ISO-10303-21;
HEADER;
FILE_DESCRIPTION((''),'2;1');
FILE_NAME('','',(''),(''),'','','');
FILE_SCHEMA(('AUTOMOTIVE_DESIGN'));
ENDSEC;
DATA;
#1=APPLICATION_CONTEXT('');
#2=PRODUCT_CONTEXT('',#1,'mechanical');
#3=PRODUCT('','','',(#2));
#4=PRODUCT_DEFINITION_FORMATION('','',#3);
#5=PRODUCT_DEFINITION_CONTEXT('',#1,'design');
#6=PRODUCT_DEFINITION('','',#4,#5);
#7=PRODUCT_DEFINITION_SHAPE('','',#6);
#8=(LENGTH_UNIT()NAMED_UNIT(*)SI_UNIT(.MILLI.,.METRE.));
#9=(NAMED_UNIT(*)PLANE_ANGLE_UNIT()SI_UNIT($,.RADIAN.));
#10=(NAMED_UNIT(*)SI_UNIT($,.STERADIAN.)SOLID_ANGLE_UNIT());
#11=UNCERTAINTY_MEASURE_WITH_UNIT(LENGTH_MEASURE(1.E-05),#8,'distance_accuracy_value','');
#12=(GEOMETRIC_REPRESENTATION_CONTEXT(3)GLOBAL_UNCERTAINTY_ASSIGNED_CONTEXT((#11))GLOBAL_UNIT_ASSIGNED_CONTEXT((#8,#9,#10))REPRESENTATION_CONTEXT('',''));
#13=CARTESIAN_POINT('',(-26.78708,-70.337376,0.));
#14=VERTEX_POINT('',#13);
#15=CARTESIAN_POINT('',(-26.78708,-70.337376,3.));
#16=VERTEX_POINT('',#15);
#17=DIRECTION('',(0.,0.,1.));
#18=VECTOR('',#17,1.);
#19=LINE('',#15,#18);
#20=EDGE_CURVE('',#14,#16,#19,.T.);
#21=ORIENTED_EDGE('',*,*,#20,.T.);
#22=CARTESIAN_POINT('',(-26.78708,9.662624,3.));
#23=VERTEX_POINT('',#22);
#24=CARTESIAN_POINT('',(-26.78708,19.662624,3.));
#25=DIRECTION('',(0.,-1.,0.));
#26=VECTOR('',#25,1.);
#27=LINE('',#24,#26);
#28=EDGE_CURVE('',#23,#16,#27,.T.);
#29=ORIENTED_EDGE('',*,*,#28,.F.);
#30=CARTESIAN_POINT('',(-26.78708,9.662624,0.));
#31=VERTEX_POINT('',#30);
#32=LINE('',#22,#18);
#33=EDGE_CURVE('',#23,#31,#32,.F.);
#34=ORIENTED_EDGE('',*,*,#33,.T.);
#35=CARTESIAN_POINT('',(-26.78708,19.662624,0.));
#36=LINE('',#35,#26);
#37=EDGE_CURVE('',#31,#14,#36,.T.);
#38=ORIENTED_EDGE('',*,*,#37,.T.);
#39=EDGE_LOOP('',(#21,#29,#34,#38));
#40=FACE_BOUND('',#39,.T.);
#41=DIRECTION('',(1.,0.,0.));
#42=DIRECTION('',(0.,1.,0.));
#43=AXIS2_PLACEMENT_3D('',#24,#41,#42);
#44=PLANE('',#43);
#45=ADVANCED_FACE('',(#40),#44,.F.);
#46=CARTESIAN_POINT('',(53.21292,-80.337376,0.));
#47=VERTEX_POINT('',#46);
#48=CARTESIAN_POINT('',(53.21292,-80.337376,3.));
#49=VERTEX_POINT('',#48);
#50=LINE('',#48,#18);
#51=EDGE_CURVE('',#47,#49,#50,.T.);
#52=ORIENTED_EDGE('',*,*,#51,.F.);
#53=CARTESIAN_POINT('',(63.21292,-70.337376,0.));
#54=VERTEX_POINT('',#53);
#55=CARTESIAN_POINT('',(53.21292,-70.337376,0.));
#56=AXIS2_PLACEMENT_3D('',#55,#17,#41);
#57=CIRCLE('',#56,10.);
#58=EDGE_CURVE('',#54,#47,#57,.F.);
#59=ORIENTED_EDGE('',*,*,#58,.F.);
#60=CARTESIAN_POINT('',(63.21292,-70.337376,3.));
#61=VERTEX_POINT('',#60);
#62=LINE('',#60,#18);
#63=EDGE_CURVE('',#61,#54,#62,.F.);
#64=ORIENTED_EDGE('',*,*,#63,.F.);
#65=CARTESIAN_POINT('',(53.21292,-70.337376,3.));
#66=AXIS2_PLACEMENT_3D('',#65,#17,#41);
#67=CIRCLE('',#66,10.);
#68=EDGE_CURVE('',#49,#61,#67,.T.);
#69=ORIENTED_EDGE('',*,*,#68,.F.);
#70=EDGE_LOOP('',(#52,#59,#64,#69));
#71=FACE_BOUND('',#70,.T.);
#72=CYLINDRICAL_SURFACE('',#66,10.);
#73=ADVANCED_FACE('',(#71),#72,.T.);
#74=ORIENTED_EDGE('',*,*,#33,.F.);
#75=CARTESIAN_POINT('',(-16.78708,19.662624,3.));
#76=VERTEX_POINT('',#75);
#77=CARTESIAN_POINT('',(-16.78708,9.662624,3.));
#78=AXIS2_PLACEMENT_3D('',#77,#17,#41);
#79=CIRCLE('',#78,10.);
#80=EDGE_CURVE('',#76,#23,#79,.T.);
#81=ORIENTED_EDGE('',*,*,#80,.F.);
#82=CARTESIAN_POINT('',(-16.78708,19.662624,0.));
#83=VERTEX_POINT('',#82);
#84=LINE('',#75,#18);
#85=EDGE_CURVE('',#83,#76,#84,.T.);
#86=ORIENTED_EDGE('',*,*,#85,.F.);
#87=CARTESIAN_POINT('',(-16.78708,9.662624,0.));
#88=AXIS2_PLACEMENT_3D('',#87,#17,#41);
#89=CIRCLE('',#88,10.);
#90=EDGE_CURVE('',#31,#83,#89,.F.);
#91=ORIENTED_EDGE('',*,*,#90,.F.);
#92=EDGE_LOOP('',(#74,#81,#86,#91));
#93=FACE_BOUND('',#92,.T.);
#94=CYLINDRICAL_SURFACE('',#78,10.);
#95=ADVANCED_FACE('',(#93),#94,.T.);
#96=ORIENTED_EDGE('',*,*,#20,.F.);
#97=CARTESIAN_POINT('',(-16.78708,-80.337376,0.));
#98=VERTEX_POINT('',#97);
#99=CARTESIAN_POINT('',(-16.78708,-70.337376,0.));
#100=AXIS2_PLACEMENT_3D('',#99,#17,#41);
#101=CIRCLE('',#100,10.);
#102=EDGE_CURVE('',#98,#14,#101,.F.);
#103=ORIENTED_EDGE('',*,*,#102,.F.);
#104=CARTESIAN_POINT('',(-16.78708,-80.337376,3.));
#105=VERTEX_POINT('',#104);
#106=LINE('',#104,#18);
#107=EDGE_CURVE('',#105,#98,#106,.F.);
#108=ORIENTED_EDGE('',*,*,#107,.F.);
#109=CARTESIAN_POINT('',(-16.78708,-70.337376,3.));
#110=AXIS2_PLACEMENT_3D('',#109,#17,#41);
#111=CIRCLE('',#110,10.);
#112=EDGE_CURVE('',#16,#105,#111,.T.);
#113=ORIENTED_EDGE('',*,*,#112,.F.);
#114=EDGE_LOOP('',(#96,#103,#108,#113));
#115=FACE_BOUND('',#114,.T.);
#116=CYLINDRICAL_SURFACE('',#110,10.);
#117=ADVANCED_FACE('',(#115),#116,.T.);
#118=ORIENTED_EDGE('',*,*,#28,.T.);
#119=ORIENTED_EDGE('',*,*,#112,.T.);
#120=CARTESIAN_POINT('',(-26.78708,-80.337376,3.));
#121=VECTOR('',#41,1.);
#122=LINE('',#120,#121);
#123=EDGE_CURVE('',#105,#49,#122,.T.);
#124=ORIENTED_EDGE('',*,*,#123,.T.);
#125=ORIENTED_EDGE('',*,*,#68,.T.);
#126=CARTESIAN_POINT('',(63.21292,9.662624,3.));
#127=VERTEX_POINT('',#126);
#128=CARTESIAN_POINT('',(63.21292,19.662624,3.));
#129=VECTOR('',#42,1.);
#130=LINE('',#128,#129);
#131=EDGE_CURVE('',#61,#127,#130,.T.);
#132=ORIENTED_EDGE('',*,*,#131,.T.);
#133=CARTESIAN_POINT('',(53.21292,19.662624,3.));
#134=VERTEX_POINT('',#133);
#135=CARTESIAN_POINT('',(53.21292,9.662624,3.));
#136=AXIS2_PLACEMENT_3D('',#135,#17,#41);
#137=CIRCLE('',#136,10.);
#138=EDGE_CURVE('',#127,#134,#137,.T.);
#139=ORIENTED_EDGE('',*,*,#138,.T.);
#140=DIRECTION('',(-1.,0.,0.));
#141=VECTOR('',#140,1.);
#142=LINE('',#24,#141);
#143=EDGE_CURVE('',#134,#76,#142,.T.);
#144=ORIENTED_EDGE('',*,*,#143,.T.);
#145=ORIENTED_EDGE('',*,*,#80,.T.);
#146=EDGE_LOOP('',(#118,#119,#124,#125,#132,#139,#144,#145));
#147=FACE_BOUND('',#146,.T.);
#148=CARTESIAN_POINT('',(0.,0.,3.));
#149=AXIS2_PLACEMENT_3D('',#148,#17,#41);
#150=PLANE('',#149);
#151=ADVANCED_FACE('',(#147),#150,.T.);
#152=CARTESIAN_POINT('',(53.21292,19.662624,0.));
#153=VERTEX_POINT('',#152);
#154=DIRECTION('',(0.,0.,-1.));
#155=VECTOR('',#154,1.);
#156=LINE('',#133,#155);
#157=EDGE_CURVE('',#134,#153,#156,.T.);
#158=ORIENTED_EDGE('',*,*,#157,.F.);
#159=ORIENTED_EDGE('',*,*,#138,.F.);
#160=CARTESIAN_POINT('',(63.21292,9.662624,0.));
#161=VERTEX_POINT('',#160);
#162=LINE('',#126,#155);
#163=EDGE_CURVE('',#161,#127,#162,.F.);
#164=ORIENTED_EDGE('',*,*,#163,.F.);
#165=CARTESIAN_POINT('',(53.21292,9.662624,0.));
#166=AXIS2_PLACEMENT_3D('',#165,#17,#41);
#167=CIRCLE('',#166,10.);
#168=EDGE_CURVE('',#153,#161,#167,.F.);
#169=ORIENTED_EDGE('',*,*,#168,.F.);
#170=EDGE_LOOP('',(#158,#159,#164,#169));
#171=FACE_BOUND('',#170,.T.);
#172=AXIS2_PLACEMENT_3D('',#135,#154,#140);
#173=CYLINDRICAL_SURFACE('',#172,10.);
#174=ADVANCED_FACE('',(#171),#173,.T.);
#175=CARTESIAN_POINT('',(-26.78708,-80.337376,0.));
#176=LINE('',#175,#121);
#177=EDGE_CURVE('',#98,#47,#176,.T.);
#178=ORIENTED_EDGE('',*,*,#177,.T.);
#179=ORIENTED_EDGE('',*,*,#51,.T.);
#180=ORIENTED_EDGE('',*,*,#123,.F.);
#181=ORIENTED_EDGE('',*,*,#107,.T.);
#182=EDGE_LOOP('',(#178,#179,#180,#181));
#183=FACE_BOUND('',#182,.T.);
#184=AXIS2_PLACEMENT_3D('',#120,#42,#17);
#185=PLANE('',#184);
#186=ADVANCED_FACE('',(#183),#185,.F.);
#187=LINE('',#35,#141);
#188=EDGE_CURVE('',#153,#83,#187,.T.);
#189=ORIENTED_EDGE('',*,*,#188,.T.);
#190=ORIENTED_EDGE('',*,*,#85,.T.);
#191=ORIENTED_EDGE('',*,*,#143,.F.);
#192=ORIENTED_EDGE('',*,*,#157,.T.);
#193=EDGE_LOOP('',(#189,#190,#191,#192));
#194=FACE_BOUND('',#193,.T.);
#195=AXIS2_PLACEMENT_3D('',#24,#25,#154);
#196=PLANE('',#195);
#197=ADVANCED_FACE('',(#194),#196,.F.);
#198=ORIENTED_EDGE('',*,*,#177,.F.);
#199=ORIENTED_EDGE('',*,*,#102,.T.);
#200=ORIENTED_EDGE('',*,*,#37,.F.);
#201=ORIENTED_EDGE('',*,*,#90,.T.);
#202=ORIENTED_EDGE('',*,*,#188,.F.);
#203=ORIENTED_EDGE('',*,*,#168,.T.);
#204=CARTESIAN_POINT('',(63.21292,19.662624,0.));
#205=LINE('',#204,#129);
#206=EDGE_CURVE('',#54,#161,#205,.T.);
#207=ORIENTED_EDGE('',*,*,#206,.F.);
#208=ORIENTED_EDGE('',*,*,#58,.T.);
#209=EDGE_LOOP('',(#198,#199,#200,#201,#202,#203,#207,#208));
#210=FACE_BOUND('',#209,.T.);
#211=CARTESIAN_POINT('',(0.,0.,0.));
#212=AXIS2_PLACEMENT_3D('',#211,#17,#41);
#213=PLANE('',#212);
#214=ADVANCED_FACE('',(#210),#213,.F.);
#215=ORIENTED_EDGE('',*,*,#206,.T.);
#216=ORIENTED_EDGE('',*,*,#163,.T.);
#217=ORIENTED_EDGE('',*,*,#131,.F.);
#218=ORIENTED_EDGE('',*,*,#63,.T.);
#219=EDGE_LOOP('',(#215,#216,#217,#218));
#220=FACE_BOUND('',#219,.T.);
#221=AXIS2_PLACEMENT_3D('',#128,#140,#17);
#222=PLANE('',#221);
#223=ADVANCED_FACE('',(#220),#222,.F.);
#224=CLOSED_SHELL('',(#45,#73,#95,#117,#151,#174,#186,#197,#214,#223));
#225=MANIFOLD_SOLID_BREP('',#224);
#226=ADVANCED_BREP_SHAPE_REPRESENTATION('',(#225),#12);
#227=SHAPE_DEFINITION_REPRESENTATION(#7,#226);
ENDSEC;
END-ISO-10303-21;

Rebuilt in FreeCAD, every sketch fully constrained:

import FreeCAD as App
import Part
import Sketcher

V = App.Vector
Q = App.Units.Quantity


def edges_at(feature, points):
    """Names of the edges that pass closest to the given points."""
    edges = feature.Shape.Edges
    near = lambda p: min(range(len(edges)), key=lambda i: edges[i].distToShape(Part.Vertex(*p))[0])
    return sorted({f"Edge{near(p) + 1}" for p in points})


def add_polygon(sketch, points):
    """Adds a closed chain of lines whose ends are joined by coincident constraints."""
    first, n = sketch.GeometryCount, len(points)
    for a, b in zip(points, points[1:] + points[:1]):
        sketch.addGeometry(Part.LineSegment(App.Vector(*a, 0), App.Vector(*b, 0)), False)
    for i in range(n):
        sketch.addConstraint(Sketcher.Constraint("Coincident", first + i, 2, first + (i + 1) % n, 1))

doc = App.newDocument("Part")
body = doc.addObject("PartDesign::Body", "Body")

# Sketch on XY plane
sketch1 = body.newObject("Sketcher::SketchObject", "Sketch")
sketch1.AttachmentSupport = (doc.getObject("XY_Plane"), [""])
sketch1.MapMode = "FlatFace"
add_polygon(sketch1, [(-27, 20), (-27, -80), (63, -80), (63, 20)])  # lines 0-3
sketch1.addConstraint(Sketcher.Constraint("Vertical", 0))
sketch1.addConstraint(Sketcher.Constraint("Horizontal", 1))
sketch1.addConstraint(Sketcher.Constraint("Vertical", 2))
sketch1.addConstraint(Sketcher.Constraint("Horizontal", 3))
sketch1.addConstraint(Sketcher.Constraint("DistanceX", 1, 1, 1, 2, Q("90 mm")))
sketch1.addConstraint(Sketcher.Constraint("DistanceY", 0, 2, 0, 1, Q("100 mm")))
sketch1.addConstraint(Sketcher.Constraint("DistanceX", 0, 2, -1, 1, Q("26.78708 mm")))
sketch1.addConstraint(Sketcher.Constraint("DistanceY", 0, 2, -1, 1, Q("80.337376 mm")))
pad1 = body.newObject("PartDesign::Pad", "Pad")
pad1.Profile = sketch1
pad1.Length = 3
doc.recompute()

fillet = body.newObject("PartDesign::Fillet", "Fillet")
fillet.Base = (pad1, edges_at(pad1, [(63.213, 19.663, 1.5)]))
fillet.Radius = 10
doc.recompute()

fillet2 = body.newObject("PartDesign::Fillet", "Fillet001")
fillet2.Base = (fillet, edges_at(fillet, [(-26.787, 19.663, 1.5)]))
fillet2.Radius = 10
doc.recompute()

fillet3 = body.newObject("PartDesign::Fillet", "Fillet002")
fillet3.Base = (fillet2, edges_at(fillet2, [(-26.787, -80.337, 1.5)]))
fillet3.Radius = 10
doc.recompute()

fillet4 = body.newObject("PartDesign::Fillet", "Fillet003")
fillet4.Base = (fillet3, edges_at(fillet3, [(63.213, -80.337, 1.5)]))
fillet4.Radius = 10

doc.recompute()
